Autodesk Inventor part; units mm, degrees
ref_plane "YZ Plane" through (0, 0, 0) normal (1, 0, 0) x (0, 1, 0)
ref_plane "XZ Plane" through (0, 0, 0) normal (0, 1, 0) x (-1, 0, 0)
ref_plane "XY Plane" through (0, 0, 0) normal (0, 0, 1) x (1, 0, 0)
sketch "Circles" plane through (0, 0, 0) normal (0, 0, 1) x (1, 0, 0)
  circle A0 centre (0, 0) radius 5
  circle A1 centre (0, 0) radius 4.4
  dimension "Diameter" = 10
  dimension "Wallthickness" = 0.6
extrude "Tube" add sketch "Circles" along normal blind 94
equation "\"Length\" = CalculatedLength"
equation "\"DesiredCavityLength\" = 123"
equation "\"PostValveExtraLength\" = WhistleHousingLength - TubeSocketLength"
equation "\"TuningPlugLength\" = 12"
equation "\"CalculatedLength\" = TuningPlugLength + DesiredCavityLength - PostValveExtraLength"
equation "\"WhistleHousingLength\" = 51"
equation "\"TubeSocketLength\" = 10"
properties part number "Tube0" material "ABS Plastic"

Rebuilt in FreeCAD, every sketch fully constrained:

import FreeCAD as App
import Part
import Sketcher
from FreeCAD import Vector
Q = App.Units.Quantity

doc = App.newDocument("Part")
body = doc.addObject("PartDesign::Body", "Body")

# Sketch on XY plane
sketch1 = body.newObject("Sketcher::SketchObject", "Sketch")
sketch1.AttachmentSupport = (doc.getObject("XY_Plane"), [""])
sketch1.MapMode = "FlatFace"
sketch1.addGeometry([
    Part.Circle(Vector(0, 0, 0), Vector(0, 0, 1), 5),
    Part.Circle(Vector(0, 0, 0), Vector(0, 0, 1), 4.4),
], False)
sketch1.addConstraint([
    Sketcher.Constraint("Coincident", 0, 3, -1, 1),
    Sketcher.Constraint("Coincident", 1, 3, -1, 1),
    Sketcher.Constraint("Diameter", 0, Q("10 mm")),
    Sketcher.Constraint("Diameter", 1, Q("8.8 mm")),
])
pad1 = body.newObject("PartDesign::Pad", "Pad")
pad1.Profile = sketch1
pad1.Length = 94

doc.recompute()
